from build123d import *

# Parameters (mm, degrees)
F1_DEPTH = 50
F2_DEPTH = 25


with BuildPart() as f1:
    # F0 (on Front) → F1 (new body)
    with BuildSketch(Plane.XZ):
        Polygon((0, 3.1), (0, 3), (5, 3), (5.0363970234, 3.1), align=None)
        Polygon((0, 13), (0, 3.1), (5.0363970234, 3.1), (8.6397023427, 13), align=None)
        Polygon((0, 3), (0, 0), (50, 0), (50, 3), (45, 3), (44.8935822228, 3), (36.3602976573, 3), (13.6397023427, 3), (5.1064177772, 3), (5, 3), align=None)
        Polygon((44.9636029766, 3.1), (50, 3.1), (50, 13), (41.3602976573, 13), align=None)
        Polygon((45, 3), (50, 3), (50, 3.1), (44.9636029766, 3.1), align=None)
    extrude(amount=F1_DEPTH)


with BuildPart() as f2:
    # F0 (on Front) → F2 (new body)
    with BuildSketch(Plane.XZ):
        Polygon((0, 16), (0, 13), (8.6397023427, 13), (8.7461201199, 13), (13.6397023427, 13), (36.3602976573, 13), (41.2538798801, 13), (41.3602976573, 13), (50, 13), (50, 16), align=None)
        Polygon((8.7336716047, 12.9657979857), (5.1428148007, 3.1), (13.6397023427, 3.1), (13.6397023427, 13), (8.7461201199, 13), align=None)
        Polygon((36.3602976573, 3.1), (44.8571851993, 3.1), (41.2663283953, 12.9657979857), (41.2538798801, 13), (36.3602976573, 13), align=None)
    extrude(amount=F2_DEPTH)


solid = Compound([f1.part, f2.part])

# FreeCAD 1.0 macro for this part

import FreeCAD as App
import Part
import Sketcher
from FreeCAD import Vector
Q = App.Units.Quantity

doc = App.newDocument("Part")
body = doc.addObject("PartDesign::Body", "Body")

sketch1 = body.newObject("Sketcher::SketchObject", "Sketch")
sketch1.AttachmentSupport = (doc.getObject("XZ_Plane"), [""])
sketch1.MapMode = "FlatFace"
sketch1.addGeometry([
    Part.LineSegment(Vector(5, 3, 0), Vector(5.036397, 3.1, 0)),
    Part.LineSegment(Vector(5.036397, 3.1, 0), Vector(8.639702, 13, 0)),
    Part.LineSegment(Vector(8.639702, 13, 0), Vector(0, 13, 0)),
    Part.LineSegment(Vector(0, 13, 0), Vector(0, 0, 0)),
    Part.LineSegment(Vector(0, 0, 0), Vector(50, 0, 0)),
    Part.LineSegment(Vector(50, 0, 0), Vector(50, 13, 0)),
    Part.LineSegment(Vector(50, 13, 0), Vector(41.360298, 13, 0)),
    Part.LineSegment(Vector(41.360298, 13, 0), Vector(44.963603, 3.1, 0)),
    Part.LineSegment(Vector(44.963603, 3.1, 0), Vector(45, 3, 0)),
    Part.LineSegment(Vector(45, 3, 0), Vector(5, 3, 0)),
], False)
sketch1.addConstraint([
    Sketcher.Constraint("Coincident", 0, 2, 1, 1),
    Sketcher.Constraint("Coincident", 1, 2, 2, 1),
    Sketcher.Constraint("Coincident", 2, 2, 3, 1),
    Sketcher.Constraint("Coincident", 3, 2, 4, 1),
    Sketcher.Constraint("Coincident", 4, 2, 5, 1),
    Sketcher.Constraint("Coincident", 5, 2, 6, 1),
    Sketcher.Constraint("Coincident", 6, 2, 7, 1),
    Sketcher.Constraint("Coincident", 7, 2, 8, 1),
    Sketcher.Constraint("Coincident", 8, 2, 9, 1),
    Sketcher.Constraint("Coincident", 9, 2, 0, 1),
    Sketcher.Constraint("Horizontal", 2),
    Sketcher.Constraint("Vertical", 3),
    Sketcher.Constraint("Horizontal", 4),
    Sketcher.Constraint("Vertical", 5),
    Sketcher.Constraint("Horizontal", 6),
    Sketcher.Constraint("Horizontal", 9),
    Sketcher.Constraint("Coincident", 3, 2, -1, 1),
    Sketcher.Constraint("Parallel", 0, 1),
    Sketcher.Constraint("Parallel", 7, 8),
    Sketcher.Constraint("Horizontal", 2, 2, 5, 2),
    Sketcher.Constraint("Horizontal", 0, 2, 7, 2),
    Sketcher.Constraint("Equal", 2, 6),
    Sketcher.Constraint("Equal", 1, 7),
    Sketcher.Constraint("DistanceX", 4, 1, 4, 2, Q("50 mm")),
    Sketcher.Constraint("DistanceX", 9, 2, 9, 1, Q("40 mm")),
    Sketcher.Constraint("DistanceY", 3, 2, 3, 1, Q("13 mm")),
    Sketcher.Constraint("Angle", 0, Q("70 deg")),
    Sketcher.Constraint("DistanceY", -1, 1, 8, 2, Q("3 mm")),
    Sketcher.Constraint("DistanceY", -1, 1, 0, 2, Q("3.1 mm")),
])
pad1 = body.newObject("PartDesign::Pad", "Pad")
pad1.Profile = sketch1
pad1.Length = 50
body2 = doc.addObject("PartDesign::Body", "Body001")

sketch2 = body2.newObject("Sketcher::SketchObject", "Sketch001")
sketch2.AttachmentSupport = (doc.getObject("XZ_Plane001"), [""])
sketch2.MapMode = "FlatFace"
sketch2.addGeometry([
    Part.LineSegment(Vector(0, 16, 0), Vector(0, 13, 0)),
    Part.LineSegment(Vector(0, 13, 0), Vector(8.74612, 13, 0)),
    Part.LineSegment(Vector(8.74612, 13, 0), Vector(8.733672, 12.965798, 0)),
    Part.LineSegment(Vector(8.733672, 12.965798, 0), Vector(5.142815, 3.1, 0)),
    Part.LineSegment(Vector(5.142815, 3.1, 0), Vector(13.639702, 3.1, 0)),
    Part.LineSegment(Vector(13.639702, 3.1, 0), Vector(13.639702, 13, 0)),
    Part.LineSegment(Vector(13.639702, 13, 0), Vector(36.360298, 13, 0)),
    Part.LineSegment(Vector(36.360298, 13, 0), Vector(36.360298, 3.1, 0)),
    Part.LineSegment(Vector(36.360298, 3.1, 0), Vector(44.857185, 3.1, 0)),
    Part.LineSegment(Vector(44.857185, 3.1, 0), Vector(41.266328, 12.965798, 0)),
    Part.LineSegment(Vector(41.266328, 12.965798, 0), Vector(41.25388, 13, 0)),
    Part.LineSegment(Vector(41.25388, 13, 0), Vector(50, 13, 0)),
    Part.LineSegment(Vector(50, 13, 0), Vector(50, 16, 0)),
    Part.LineSegment(Vector(50, 16, 0), Vector(0, 16, 0)),
], False)
sketch2.addConstraint([
    Sketcher.Constraint("Coincident", 0, 2, 1, 1),
    Sketcher.Constraint("Coincident", 1, 2, 2, 1),
    Sketcher.Constraint("Coincident", 2, 2, 3, 1),
    Sketcher.Constraint("Coincident", 3, 2, 4, 1),
    Sketcher.Constraint("Coincident", 4, 2, 5, 1),
    Sketcher.Constraint("Coincident", 5, 2, 6, 1),
    Sketcher.Constraint("Coincident", 6, 2, 7, 1),
    Sketcher.Constraint("Coincident", 7, 2, 8, 1),
    Sketcher.Constraint("Coincident", 8, 2, 9, 1),
    Sketcher.Constraint("Coincident", 9, 2, 10, 1),
    Sketcher.Constraint("Coincident", 10, 2, 11, 1),
    Sketcher.Constraint("Coincident", 11, 2, 12, 1),
    Sketcher.Constraint("Coincident", 12, 2, 13, 1),
    Sketcher.Constraint("Coincident", 13, 2, 0, 1),
    Sketcher.Constraint("Vertical", 0),
    Sketcher.Constraint("Horizontal", 1),
    Sketcher.Constraint("Horizontal", 4),
    Sketcher.Constraint("Vertical", 5),
    Sketcher.Constraint("Horizontal", 6),
    Sketcher.Constraint("Vertical", 7),
    Sketcher.Constraint("Horizontal", 8),
    Sketcher.Constraint("Horizontal", 11),
    Sketcher.Constraint("Vertical", 12),
    Sketcher.Constraint("Horizontal", 13),
    Sketcher.Constraint("PointOnObject", 0, 2, -2),
    Sketcher.Constraint("Parallel", 2, 3),
    Sketcher.Constraint("Parallel", 9, 10),
    Sketcher.Constraint("Horizontal", 1, 2, 5, 2),
    Sketcher.Constraint("Horizontal", 4, 2, 7, 2),
    Sketcher.Constraint("Horizontal", 2, 2, 9, 2),
    Sketcher.Constraint("Horizontal", 6, 2, 10, 2),
    Sketcher.Constraint("Equal", 4, 8),
    Sketcher.Constraint("Equal", 1, 11),
    Sketcher.Constraint("Equal", 3, 9),
    Sketcher.Constraint("DistanceX", 13, 2, 13, 1, Q("50 mm")),
    Sketcher.Constraint("DistanceY", 0, 2, 0, 1, Q("3 mm")),
    Sketcher.Constraint("Angle", 3, Q("-110 deg")),
    Sketcher.Constraint("DistanceY", 5, 1, 5, 2, Q("9.9 mm")),
    Sketcher.Constraint("DistanceY", -1, 1, 0, 2, Q("13 mm")),
    Sketcher.Constraint("DistanceX", 1, 1, 1, 2, Q("8.74612 mm")),
    Sketcher.Constraint("DistanceX", 4, 1, 4, 2, Q("8.496888 mm")),
    Sketcher.Constraint("DistanceX", -1, 1, 2, 2, Q("8.733672 mm")),
])
pad2 = body2.newObject("PartDesign::Pad", "Pad001")
pad2.Profile = sketch2
pad2.Length = 25

doc.recompute()
